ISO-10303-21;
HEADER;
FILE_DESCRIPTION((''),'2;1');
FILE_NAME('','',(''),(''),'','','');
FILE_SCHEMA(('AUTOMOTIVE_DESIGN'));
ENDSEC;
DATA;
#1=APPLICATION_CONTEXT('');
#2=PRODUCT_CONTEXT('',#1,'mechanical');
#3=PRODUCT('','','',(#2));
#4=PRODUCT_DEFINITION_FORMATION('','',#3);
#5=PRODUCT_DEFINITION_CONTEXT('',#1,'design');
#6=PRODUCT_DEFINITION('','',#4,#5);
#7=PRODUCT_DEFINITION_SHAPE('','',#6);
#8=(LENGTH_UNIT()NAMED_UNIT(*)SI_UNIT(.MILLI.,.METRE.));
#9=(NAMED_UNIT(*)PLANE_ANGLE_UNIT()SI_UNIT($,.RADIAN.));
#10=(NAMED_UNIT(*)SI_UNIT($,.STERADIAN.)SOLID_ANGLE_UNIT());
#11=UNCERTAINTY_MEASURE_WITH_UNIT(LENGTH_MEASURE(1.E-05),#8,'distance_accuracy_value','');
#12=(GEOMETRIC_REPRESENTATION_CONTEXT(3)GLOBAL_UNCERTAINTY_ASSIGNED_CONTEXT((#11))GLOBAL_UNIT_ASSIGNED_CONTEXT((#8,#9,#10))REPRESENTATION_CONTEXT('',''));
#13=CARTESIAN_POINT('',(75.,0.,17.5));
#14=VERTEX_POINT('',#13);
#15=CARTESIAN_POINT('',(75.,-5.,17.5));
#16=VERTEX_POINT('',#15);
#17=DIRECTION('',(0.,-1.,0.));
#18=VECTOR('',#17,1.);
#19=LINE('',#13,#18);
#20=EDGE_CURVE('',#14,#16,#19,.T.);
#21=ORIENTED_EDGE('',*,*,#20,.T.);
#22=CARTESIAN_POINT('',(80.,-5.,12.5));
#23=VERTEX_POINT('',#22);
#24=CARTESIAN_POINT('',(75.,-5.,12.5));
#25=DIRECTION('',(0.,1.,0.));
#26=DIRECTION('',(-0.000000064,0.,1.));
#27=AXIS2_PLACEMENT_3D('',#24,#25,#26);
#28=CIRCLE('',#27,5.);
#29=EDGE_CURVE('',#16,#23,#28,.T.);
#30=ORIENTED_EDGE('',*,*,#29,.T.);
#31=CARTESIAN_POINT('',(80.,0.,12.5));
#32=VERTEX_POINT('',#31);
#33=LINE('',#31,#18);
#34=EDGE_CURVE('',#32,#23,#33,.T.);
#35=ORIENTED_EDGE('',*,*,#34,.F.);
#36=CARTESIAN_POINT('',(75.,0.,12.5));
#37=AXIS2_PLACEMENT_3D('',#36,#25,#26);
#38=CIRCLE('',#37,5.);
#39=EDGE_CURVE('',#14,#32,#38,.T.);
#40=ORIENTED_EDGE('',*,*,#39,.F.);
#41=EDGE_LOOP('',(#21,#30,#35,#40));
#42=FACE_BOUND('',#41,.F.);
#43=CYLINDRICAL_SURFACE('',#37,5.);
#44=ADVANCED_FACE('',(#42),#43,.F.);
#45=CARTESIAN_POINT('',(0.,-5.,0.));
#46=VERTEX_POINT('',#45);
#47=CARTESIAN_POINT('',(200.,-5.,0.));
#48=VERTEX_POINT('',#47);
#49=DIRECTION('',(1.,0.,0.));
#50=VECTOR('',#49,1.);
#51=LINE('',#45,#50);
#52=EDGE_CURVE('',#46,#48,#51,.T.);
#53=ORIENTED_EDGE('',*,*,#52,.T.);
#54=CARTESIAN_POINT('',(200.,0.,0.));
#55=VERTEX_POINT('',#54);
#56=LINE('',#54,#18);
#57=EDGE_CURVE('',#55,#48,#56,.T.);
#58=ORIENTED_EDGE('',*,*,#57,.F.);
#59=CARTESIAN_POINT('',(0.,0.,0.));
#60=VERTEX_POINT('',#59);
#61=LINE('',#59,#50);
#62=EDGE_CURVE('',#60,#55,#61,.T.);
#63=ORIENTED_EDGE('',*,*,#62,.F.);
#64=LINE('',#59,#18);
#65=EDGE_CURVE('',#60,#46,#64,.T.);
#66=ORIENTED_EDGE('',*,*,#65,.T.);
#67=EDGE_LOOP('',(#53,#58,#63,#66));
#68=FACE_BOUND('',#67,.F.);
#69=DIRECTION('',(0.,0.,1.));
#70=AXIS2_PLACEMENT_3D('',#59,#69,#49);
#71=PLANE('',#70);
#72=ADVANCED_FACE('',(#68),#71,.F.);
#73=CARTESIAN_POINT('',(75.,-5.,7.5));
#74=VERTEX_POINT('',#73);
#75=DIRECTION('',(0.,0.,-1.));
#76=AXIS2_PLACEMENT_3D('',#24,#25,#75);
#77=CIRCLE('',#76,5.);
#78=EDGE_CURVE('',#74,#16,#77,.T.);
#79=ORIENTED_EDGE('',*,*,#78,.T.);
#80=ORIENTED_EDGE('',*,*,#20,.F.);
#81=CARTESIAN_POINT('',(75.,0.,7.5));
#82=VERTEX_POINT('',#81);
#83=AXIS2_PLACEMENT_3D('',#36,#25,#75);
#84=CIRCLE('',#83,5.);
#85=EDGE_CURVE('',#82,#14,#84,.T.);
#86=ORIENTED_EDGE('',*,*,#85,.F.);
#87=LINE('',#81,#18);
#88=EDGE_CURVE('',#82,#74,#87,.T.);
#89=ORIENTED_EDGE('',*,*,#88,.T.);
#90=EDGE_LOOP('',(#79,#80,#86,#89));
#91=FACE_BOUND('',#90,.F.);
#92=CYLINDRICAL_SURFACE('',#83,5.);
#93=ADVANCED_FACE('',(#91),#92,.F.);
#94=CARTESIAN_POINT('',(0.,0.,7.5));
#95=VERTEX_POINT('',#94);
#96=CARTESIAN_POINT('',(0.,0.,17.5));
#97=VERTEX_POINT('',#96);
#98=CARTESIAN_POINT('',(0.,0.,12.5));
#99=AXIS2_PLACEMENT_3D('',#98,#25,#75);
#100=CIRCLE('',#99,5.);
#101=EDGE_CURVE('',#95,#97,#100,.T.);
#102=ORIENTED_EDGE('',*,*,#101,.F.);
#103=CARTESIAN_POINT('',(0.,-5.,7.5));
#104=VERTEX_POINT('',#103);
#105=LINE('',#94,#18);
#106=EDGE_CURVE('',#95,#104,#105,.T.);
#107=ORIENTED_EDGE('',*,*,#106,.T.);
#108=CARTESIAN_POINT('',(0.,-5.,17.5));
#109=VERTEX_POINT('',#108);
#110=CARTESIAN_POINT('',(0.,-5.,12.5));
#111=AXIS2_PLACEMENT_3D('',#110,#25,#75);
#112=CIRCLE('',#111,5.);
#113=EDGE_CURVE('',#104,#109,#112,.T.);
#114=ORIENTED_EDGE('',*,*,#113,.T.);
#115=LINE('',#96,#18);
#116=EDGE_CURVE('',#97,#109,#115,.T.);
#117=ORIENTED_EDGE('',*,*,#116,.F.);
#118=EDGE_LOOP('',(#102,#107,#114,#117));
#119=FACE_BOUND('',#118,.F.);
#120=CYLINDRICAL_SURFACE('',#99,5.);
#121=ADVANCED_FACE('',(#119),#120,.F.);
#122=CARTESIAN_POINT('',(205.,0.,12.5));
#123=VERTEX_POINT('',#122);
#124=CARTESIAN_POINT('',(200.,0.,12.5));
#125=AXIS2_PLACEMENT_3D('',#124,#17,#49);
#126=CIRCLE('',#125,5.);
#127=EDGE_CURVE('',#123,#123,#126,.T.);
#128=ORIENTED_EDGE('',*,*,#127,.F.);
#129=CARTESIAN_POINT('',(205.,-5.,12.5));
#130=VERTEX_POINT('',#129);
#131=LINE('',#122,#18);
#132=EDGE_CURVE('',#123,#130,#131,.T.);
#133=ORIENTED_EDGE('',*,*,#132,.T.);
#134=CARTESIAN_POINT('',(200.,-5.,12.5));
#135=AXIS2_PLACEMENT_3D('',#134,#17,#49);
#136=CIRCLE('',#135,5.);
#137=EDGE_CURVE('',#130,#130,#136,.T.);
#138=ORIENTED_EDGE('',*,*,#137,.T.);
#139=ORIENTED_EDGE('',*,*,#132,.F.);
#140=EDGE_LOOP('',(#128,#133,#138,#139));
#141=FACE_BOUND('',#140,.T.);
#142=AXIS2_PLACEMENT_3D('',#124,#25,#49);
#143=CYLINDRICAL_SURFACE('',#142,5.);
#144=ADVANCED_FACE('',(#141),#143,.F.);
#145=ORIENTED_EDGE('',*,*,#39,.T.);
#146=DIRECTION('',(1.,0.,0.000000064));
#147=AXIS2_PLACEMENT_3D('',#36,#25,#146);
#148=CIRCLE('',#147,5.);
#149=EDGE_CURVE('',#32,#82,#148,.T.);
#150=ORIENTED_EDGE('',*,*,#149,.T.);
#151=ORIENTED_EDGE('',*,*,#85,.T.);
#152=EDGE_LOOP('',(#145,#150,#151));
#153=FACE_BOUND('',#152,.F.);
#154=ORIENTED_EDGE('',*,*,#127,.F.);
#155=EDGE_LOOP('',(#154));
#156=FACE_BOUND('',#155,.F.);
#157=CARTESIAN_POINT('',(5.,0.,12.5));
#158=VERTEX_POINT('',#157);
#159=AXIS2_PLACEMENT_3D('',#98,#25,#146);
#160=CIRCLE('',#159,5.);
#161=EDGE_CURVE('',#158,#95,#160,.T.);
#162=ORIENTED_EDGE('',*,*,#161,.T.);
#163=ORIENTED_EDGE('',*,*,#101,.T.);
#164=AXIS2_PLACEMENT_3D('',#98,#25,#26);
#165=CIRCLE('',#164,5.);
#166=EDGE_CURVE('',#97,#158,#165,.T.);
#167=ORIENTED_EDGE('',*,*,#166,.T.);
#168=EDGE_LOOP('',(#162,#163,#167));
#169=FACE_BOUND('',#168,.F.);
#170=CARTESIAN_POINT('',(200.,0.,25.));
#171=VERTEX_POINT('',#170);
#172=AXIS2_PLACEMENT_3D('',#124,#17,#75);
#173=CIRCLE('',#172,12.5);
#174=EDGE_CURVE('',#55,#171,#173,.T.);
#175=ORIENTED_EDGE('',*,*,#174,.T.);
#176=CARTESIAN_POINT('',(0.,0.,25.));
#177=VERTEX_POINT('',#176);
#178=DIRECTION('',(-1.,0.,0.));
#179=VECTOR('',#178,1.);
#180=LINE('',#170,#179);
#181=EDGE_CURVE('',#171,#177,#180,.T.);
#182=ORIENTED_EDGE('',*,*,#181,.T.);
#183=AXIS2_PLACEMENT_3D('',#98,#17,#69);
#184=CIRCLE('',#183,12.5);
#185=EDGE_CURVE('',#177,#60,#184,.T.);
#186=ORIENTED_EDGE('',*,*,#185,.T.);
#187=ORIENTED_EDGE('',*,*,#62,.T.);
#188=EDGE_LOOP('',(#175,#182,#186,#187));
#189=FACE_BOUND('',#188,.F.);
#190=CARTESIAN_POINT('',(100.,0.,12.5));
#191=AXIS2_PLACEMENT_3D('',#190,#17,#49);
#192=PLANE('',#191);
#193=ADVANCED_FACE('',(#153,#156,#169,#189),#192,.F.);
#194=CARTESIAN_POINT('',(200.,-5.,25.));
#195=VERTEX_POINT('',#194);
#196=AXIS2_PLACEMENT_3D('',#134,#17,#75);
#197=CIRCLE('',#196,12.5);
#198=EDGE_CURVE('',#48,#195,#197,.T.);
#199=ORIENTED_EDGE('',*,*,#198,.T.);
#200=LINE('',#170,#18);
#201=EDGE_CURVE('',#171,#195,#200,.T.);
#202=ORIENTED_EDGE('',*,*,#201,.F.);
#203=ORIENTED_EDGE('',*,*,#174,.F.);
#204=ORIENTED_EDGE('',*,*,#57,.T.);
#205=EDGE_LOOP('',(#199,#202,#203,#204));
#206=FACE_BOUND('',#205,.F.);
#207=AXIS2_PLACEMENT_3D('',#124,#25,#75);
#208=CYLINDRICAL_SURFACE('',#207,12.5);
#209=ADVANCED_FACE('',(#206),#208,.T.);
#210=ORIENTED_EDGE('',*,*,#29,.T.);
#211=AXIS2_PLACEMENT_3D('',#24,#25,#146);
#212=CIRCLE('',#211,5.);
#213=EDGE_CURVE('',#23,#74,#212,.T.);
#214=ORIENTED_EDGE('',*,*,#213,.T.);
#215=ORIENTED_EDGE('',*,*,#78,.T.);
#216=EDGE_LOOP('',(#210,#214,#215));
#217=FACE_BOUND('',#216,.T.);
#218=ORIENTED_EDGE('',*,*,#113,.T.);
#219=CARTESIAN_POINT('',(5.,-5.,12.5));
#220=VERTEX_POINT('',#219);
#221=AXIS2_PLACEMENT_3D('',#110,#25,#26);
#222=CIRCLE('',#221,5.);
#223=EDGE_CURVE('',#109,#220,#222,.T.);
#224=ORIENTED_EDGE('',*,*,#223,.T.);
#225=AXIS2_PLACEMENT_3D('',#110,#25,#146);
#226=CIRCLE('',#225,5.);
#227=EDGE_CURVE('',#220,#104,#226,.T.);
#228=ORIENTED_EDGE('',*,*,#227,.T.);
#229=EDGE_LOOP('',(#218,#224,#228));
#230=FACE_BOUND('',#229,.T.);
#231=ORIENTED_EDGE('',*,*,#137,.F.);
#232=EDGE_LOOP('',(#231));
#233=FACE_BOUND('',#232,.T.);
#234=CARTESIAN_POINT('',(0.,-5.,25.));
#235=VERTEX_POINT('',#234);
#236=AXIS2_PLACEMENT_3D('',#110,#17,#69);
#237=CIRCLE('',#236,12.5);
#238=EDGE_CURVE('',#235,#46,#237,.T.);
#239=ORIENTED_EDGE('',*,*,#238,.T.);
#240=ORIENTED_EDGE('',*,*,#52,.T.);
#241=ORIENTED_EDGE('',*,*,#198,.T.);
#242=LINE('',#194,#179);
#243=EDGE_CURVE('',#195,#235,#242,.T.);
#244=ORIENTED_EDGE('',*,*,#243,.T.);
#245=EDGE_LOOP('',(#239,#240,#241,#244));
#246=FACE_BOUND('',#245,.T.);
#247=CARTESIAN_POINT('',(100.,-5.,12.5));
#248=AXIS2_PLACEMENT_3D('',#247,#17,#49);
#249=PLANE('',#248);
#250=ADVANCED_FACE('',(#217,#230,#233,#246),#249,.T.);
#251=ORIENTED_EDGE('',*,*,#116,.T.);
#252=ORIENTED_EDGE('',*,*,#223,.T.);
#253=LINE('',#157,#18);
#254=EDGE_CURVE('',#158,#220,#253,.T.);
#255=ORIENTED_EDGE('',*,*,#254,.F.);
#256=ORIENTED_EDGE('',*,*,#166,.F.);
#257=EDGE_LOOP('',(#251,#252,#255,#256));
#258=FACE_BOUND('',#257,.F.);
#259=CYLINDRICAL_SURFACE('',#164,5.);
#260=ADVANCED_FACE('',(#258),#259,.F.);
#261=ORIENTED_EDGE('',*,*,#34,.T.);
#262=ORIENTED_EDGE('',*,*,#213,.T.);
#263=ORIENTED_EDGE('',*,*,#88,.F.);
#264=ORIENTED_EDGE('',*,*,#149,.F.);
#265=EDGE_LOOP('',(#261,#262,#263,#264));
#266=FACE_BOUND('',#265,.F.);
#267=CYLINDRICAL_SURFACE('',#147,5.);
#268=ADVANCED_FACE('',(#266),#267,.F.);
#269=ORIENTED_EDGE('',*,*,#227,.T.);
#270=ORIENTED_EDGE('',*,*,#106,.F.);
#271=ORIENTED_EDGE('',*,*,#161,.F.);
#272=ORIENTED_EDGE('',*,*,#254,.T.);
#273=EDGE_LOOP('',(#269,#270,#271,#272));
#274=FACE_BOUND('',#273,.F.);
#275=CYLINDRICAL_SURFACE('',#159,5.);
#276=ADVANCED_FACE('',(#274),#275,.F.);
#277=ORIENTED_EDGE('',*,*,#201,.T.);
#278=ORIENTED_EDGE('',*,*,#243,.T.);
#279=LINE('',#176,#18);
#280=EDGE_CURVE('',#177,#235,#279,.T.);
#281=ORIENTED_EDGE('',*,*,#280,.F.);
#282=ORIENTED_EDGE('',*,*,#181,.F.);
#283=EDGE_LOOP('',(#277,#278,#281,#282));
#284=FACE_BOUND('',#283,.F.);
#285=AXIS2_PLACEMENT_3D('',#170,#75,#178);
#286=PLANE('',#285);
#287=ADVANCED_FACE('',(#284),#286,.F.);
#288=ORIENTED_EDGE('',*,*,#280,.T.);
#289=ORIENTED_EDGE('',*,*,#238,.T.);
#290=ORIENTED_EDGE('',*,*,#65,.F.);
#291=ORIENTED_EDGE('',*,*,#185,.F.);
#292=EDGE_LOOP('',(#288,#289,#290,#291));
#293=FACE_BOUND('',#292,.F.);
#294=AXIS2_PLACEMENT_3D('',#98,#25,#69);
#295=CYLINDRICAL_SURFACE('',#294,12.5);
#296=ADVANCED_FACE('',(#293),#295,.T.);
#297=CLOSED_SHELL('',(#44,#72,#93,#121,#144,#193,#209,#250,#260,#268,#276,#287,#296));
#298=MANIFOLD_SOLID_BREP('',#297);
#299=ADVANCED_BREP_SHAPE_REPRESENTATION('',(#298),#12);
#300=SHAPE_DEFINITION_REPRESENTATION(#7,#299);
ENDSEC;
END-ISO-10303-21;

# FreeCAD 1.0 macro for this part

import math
import FreeCAD as App
import Part
import Sketcher

V = App.Vector

doc = App.newDocument("Part")
body = doc.addObject("PartDesign::Body", "Body")

# Sketch on XZ plane
sketch1 = doc.addObject("Sketcher::SketchObject", "Sketch")
body.addObject(sketch1)
sketch1.AttachmentSupport = (doc.XZ_Plane, [""])
sketch1.MapMode = "FlatFace"
sketch1.addGeometry(Part.ArcOfCircle(Part.Circle(V(0, 12.5, 0), V(0, 0, 1), 12.5), math.radians(90), math.radians(270)), False)
sketch1.addGeometry(Part.LineSegment(V(0, 0, 0), V(200, 0, 0)), False)
sketch1.addGeometry(Part.ArcOfCircle(Part.Circle(V(200, 12.5, 0), V(0, 0, 1), 12.5), math.radians(-90), math.radians(90)), False)
sketch1.addGeometry(Part.LineSegment(V(200, 25, 0), V(0, 25, 0)), False)
sketch1.addGeometry(Part.ArcOfCircle(Part.Circle(V(0, 12.5, 0), V(0, 0, 1), 5), math.radians(-90.000004), math.radians(0.000004)), False)
sketch1.addGeometry(Part.ArcOfCircle(Part.Circle(V(0, 12.5, 0), V(0, 0, 1), 5), math.radians(90), math.radians(270)), False)
sketch1.addGeometry(Part.ArcOfCircle(Part.Circle(V(0, 12.5, 0), V(0, 0, 1), 5), math.radians(-0.000004), math.radians(90.000004)), False)
sketch1.addGeometry(Part.ArcOfCircle(Part.Circle(V(75, 12.5, 0), V(0, 0, 1), 5), math.radians(-0.000004), math.radians(90.000004)), False)
sketch1.addGeometry(Part.ArcOfCircle(Part.Circle(V(75, 12.5, 0), V(0, 0, 1), 5), math.radians(-90.000004), math.radians(0.000004)), False)
sketch1.addGeometry(Part.ArcOfCircle(Part.Circle(V(75, 12.5, 0), V(0, 0, 1), 5), math.radians(90), math.radians(270)), False)
sketch1.addGeometry(Part.Circle(V(200, 12.5, 0), V(0, 0, 1), 5), False)
sketch1.addConstraint(Sketcher.Constraint("Tangent", 0, 2, 1, 1))
sketch1.addConstraint(Sketcher.Constraint("Tangent", 1, 2, 2, 1))
sketch1.addConstraint(Sketcher.Constraint("Tangent", 2, 2, 3, 1))
sketch1.addConstraint(Sketcher.Constraint("Tangent", 3, 2, 0, 1))
sketch1.addConstraint(Sketcher.Constraint("Tangent", 4, 1, 5, 2))
sketch1.addConstraint(Sketcher.Constraint("Tangent", 5, 1, 6, 2))
sketch1.addConstraint(Sketcher.Constraint("Tangent", 6, 1, 4, 2))
sketch1.addConstraint(Sketcher.Constraint("Tangent", 7, 1, 8, 2))
sketch1.addConstraint(Sketcher.Constraint("Tangent", 8, 1, 9, 2))
sketch1.addConstraint(Sketcher.Constraint("Tangent", 9, 1, 7, 2))
sketch1.addConstraint(Sketcher.Constraint("Horizontal", 1))
sketch1.addConstraint(Sketcher.Constraint("Horizontal", 3))
sketch1.addConstraint(Sketcher.Constraint("Coincident", 0, 2, -1, 1))
sketch1.addConstraint(Sketcher.Constraint("Coincident", 4, 3, 0, 3))
sketch1.addConstraint(Sketcher.Constraint("Coincident", 10, 3, 2, 3))
sketch1.addConstraint(Sketcher.Constraint("Equal", 6, 7))
sketch1.addConstraint(Sketcher.Constraint("Equal", 9, 10))
sketch1.addConstraint(Sketcher.Constraint("PointOnObject", 4, 1, -2))
sketch1.addConstraint(Sketcher.Constraint("PointOnObject", 5, 1, -2))
sketch1.addConstraint(Sketcher.Constraint("Horizontal", 6, 3, 7, 3))
sketch1.addConstraint(Sketcher.Constraint("Horizontal", 10, 3, 6, 1))
sketch1.addConstraint(Sketcher.Constraint("Horizontal", 6, 1, 7, 1))
sketch1.addConstraint(Sketcher.Constraint("Vertical", 9, 3, 8, 1))
sketch1.addConstraint(Sketcher.Constraint("Vertical", 8, 1, 9, 1))
sketch1.addConstraint(Sketcher.Constraint("Diameter", 10, 10.0))
sketch1.addConstraint(Sketcher.Constraint("Radius", 0, 12.5))
sketch1.addConstraint(Sketcher.Constraint("DistanceX", 1, 1, 1, 2, 200.0))
sketch1.addConstraint(Sketcher.Constraint("DistanceX", -1, 1, 7, 3, 75.0))
pad1 = doc.addObject("PartDesign::Pad", "Pad")
body.addObject(pad1)
pad1.Profile = sketch1
pad1.Length = 5

doc.recompute()
